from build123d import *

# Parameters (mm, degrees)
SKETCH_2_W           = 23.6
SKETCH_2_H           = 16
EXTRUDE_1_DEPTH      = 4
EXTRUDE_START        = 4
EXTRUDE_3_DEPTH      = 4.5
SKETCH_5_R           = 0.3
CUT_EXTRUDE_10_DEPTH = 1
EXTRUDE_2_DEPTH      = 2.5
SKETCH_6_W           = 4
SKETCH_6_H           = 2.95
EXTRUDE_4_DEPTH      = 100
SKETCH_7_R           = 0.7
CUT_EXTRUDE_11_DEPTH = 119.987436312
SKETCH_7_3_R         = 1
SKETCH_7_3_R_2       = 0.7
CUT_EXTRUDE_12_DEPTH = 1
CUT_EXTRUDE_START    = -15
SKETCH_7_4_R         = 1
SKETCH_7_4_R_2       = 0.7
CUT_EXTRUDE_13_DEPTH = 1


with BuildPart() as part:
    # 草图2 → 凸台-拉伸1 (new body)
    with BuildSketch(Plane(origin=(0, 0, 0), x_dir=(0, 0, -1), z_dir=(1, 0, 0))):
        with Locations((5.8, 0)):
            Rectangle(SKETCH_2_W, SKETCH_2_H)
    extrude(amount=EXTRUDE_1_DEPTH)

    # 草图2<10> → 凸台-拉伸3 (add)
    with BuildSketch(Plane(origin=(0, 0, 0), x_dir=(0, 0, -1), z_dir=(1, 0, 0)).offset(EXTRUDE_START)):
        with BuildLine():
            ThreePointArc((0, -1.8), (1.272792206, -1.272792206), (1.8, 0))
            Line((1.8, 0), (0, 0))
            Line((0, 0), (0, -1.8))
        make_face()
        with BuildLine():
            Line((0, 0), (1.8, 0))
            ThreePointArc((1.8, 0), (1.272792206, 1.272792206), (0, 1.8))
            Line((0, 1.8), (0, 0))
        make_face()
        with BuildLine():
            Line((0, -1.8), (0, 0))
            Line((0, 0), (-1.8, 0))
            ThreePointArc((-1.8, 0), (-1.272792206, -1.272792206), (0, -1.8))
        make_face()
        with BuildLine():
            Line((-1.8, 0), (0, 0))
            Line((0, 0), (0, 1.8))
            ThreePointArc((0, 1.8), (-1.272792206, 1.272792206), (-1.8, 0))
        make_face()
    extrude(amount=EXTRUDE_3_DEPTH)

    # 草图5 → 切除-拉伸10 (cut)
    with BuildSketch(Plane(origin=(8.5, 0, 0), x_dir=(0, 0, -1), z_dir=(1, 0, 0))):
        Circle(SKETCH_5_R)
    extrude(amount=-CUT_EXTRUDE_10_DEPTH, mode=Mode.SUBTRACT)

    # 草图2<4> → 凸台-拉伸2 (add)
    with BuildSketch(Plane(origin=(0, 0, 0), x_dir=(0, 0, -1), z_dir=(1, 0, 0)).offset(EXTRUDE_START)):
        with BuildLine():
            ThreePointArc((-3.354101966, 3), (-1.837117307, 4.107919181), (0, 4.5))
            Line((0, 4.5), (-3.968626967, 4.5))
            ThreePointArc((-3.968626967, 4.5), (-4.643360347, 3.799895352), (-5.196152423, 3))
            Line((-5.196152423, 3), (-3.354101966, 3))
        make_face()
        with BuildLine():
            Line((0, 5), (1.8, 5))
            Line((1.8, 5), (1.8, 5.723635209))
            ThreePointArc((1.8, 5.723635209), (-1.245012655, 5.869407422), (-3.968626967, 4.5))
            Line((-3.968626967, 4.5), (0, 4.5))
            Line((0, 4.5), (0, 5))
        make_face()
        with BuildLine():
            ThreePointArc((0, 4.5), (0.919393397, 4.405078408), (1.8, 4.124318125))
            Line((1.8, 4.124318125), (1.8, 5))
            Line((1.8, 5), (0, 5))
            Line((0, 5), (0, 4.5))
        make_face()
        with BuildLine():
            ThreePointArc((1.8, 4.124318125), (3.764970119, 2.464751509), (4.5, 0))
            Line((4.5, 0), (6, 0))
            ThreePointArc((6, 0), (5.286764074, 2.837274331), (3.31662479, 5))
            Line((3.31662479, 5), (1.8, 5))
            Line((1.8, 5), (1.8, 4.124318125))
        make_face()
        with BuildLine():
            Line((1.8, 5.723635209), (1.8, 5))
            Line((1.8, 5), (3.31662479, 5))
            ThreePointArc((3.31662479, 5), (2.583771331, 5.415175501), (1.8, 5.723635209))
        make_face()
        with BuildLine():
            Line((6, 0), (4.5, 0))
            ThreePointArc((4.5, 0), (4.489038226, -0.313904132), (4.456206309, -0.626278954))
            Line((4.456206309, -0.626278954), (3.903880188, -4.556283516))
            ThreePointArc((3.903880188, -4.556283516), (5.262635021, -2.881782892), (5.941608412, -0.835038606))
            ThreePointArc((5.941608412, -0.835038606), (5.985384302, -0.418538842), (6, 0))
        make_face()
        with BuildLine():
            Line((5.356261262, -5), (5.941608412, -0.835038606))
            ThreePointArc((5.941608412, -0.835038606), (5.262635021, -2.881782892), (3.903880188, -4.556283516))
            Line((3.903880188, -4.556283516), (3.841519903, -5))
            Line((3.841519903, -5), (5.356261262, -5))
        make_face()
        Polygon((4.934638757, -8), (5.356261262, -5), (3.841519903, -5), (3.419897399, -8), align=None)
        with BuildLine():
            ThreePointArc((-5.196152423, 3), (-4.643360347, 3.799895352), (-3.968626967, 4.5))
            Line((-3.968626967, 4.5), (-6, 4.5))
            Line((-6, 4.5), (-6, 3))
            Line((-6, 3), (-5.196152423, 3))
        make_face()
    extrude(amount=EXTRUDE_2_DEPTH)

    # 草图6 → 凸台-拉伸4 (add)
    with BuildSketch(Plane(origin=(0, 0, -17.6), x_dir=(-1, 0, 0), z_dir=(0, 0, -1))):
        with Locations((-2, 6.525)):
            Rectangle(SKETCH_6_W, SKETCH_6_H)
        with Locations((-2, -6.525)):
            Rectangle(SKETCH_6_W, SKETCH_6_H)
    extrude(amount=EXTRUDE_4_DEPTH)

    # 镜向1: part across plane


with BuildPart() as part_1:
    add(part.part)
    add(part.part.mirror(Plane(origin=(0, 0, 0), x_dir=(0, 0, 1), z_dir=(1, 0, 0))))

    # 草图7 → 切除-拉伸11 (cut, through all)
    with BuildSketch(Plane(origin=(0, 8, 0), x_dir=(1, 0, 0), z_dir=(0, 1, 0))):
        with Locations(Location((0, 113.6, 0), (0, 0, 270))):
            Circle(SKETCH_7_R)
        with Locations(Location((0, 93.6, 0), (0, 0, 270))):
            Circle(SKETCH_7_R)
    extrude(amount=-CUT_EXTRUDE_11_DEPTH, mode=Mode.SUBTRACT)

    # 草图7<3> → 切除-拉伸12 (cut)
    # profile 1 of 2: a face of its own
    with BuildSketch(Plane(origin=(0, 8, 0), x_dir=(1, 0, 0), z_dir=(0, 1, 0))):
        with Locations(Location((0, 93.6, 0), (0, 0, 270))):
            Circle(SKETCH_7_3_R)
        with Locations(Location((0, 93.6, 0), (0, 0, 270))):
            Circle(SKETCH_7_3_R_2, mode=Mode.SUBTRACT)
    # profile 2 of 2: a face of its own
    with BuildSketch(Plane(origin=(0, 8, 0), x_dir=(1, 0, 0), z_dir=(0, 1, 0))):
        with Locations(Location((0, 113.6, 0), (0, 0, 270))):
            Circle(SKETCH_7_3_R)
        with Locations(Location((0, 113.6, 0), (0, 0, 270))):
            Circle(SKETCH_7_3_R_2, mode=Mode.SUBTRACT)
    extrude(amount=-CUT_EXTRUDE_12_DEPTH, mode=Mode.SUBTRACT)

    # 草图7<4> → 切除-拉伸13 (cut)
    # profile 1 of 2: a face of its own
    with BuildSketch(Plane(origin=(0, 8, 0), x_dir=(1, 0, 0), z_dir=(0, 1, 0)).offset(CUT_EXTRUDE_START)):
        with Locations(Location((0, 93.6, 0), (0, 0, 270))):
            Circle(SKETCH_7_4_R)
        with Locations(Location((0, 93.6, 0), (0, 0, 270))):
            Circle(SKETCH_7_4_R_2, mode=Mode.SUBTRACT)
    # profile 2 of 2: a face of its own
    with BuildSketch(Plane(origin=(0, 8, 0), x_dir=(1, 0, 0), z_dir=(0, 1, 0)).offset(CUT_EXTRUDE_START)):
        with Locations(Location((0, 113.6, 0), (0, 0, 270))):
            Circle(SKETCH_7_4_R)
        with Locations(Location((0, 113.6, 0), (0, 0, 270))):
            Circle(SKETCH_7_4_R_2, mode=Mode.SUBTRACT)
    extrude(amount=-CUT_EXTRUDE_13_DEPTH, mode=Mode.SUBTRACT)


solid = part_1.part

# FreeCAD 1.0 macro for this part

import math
import FreeCAD as App
import Part
import Sketcher
Q = App.Units.Quantity


def add_polygon(sketch, points):
    """Adds a closed chain of lines whose ends are joined by coincident constraints."""
    first, n = sketch.GeometryCount, len(points)
    for a, b in zip(points, points[1:] + points[:1]):
        sketch.addGeometry(Part.LineSegment(App.Vector(*a, 0), App.Vector(*b, 0)), False)
    for i in range(n):
        sketch.addConstraint(Sketcher.Constraint("Coincident", first + i, 2, first + (i + 1) % n, 1))

doc = App.newDocument("Part")
body = doc.addObject("PartDesign::Body", "Body")

# Sketch on YZ plane
sketch1 = body.newObject("Sketcher::SketchObject", "Sketch")
sketch1.AttachmentSupport = (doc.getObject("YZ_Plane"), [""])
sketch1.MapMode = "FlatFace"
add_polygon(sketch1, [(8, 6), (-8, 6), (-8, -17.6), (8, -17.6)])  # lines 0-3
sketch1.addConstraint([
    Sketcher.Constraint("Horizontal", 0),
    Sketcher.Constraint("Vertical", 1),
    Sketcher.Constraint("Horizontal", 2),
    Sketcher.Constraint("Vertical", 3),
    Sketcher.Constraint("DistanceX", 0, 2, 0, 1, Q("16 mm")),
    Sketcher.Constraint("DistanceY", 1, 2, 1, 1, Q("23.6 mm")),
    Sketcher.Constraint("DistanceX", 0, 2, -1, 1, Q("8 mm")),
    Sketcher.Constraint("DistanceY", -1, 1, 0, 2, Q("6 mm")),
])
pad1 = body.newObject("PartDesign::Pad", "Pad")
pad1.Profile = sketch1
pad1.Length = 4

# Sketch on YZ plane
sketch2 = body.newObject("Sketcher::SketchObject", "Sketch001")
sketch2.AttachmentSupport = (doc.getObject("YZ_Plane"), [""])
sketch2.MapMode = "FlatFace"
sketch2.AttachmentOffset = App.Placement(App.Vector(0, 0, 4), App.Rotation())
sketch2.addGeometry([
    Part.ArcOfCircle(Part.Circle(App.Vector(0, 0, 0), App.Vector(0, 0, 1), 1.8), math.radians(-90), math.radians(0)),
    Part.ArcOfCircle(Part.Circle(App.Vector(0, 0, 0), App.Vector(0, 0, 1), 1.8), math.radians(0), math.radians(90)),
    Part.ArcOfCircle(Part.Circle(App.Vector(0, 0, 0), App.Vector(0, 0, 1), 1.8), math.radians(90), math.radians(180)),
    Part.ArcOfCircle(Part.Circle(App.Vector(0, 0, 0), App.Vector(0, 0, 1), 1.8), math.radians(180), math.radians(270)),
], False)
sketch2.addConstraint([
    Sketcher.Constraint("Tangent", 0, 2, 1, 1),
    Sketcher.Constraint("Tangent", 1, 2, 2, 1),
    Sketcher.Constraint("Tangent", 2, 2, 3, 1),
    Sketcher.Constraint("Tangent", 3, 2, 0, 1),
    Sketcher.Constraint("Coincident", 0, 3, -1, 1),
    Sketcher.Constraint("Equal", 0, 1),
    Sketcher.Constraint("PointOnObject", 0, 2, -1),
    Sketcher.Constraint("PointOnObject", 1, 2, -2),
    Sketcher.Constraint("PointOnObject", 2, 2, -1),
    Sketcher.Constraint("PointOnObject", 3, 2, -2),
    Sketcher.Constraint("Radius", 0, Q("1.8 mm")),
])
pad2 = body.newObject("PartDesign::Pad", "Pad001")
pad2.Profile = sketch2
pad2.Length = 4.5

# Sketch on YZ plane
sketch3 = body.newObject("Sketcher::SketchObject", "Sketch002")
sketch3.AttachmentSupport = (doc.getObject("YZ_Plane"), [""])
sketch3.MapMode = "FlatFace"
sketch3.AttachmentOffset = App.Placement(App.Vector(0, 0, 8.5), App.Rotation())
sketch3.addGeometry(Part.Circle(App.Vector(0, 0, 0), App.Vector(0, 0, 1), 0.3), False)
sketch3.addConstraint([
    Sketcher.Constraint("Coincident", 0, 3, -1, 1),
    Sketcher.Constraint("Diameter", 0, Q("0.6 mm")),
])
pocket1 = body.newObject("PartDesign::Pocket", "Pocket")
pocket1.Profile = sketch3
pocket1.Length = 1

# Sketch on YZ plane
sketch4 = body.newObject("Sketcher::SketchObject", "Sketch003")
sketch4.AttachmentSupport = (doc.getObject("YZ_Plane"), [""])
sketch4.MapMode = "FlatFace"
sketch4.AttachmentOffset = App.Placement(App.Vector(0, 0, 4), App.Rotation())
sketch4.addGeometry([
    Part.ArcOfCircle(Part.Circle(App.Vector(0, 0, 0), App.Vector(0, 0, 1), 4.5), math.radians(0), math.radians(48.189685)),  # 0
    Part.ArcOfCircle(Part.Circle(App.Vector(0, 0, 0), App.Vector(0, 0, 1), 4.5), math.radians(-23.578179), math.radians(0)),  # 1
    Part.ArcOfCircle(Part.Circle(App.Vector(0, 0, 0), App.Vector(0, 0, 1), 4.5), math.radians(-90), math.radians(-23.578178)),  # 2
    Part.ArcOfCircle(Part.Circle(App.Vector(0, 0, 0), App.Vector(0, 0, 1), 4.5), math.radians(-98), math.radians(-90)),  # 3
    Part.LineSegment(App.Vector(-0.626279, -4.456206, 0), App.Vector(-4.556284, -3.90388, 0)),  # 4
    Part.LineSegment(App.Vector(-4.556284, -3.90388, 0), App.Vector(-5, -3.84152, 0)),  # 5
    Part.LineSegment(App.Vector(-5, -3.84152, 0), App.Vector(-8, -3.419897, 0)),  # 6
    Part.LineSegment(App.Vector(-8, -3.419897, 0), App.Vector(-8, -4.934639, 0)),  # 7
    Part.LineSegment(App.Vector(-8, -4.934639, 0), App.Vector(-5, -5.356261, 0)),  # 8
    Part.LineSegment(App.Vector(-5, -5.356261, 0), App.Vector(-0.835039, -5.941608, 0)),  # 9
    Part.ArcOfCircle(Part.Circle(App.Vector(0, 0, 0), App.Vector(0, 0, 1), 6), math.radians(-98), math.radians(-90)),  # 10
    Part.ArcOfCircle(Part.Circle(App.Vector(0, 0, 0), App.Vector(0, 0, 1), 6), math.radians(-90), math.radians(-33.55731)),  # 11
    Part.ArcOfCircle(Part.Circle(App.Vector(0, 0, 0), App.Vector(0, 0, 1), 6), math.radians(-33.55731), math.radians(-17.457603)),  # 12
    Part.ArcOfCircle(Part.Circle(App.Vector(0, 0, 0), App.Vector(0, 0, 1), 6), math.radians(-17.457603), math.radians(41.409622)),  # 13
    Part.LineSegment(App.Vector(4.5, 3.968627, 0), App.Vector(4.5, 6, 0)),  # 14
    Part.LineSegment(App.Vector(4.5, 6, 0), App.Vector(3, 6, 0)),  # 15
    Part.LineSegment(App.Vector(3, 6, 0), App.Vector(3, 3.354102, 0)),  # 16
], False)
sketch4.addConstraint([
    Sketcher.Constraint("Tangent", 0, 1, 1, 2),
    Sketcher.Constraint("Tangent", 1, 1, 2, 2),
    Sketcher.Constraint("Tangent", 2, 1, 3, 2),
    Sketcher.Constraint("Tangent", 3, 1, 4, 1),
    Sketcher.Constraint("Coincident", 4, 2, 5, 1),
    Sketcher.Constraint("Coincident", 5, 2, 6, 1),
    Sketcher.Constraint("Coincident", 6, 2, 7, 1),
    Sketcher.Constraint("Coincident", 7, 2, 8, 1),
    Sketcher.Constraint("Coincident", 8, 2, 9, 1),
    Sketcher.Constraint("Tangent", 9, 2, 10, 1),
    Sketcher.Constraint("Tangent", 10, 2, 11, 1),
    Sketcher.Constraint("Tangent", 11, 2, 12, 1),
    Sketcher.Constraint("Tangent", 12, 2, 13, 1),
    Sketcher.Constraint("Coincident", 13, 2, 14, 1),
    Sketcher.Constraint("Coincident", 14, 2, 15, 1),
    Sketcher.Constraint("Coincident", 15, 2, 16, 1),
    Sketcher.Constraint("Coincident", 16, 2, 0, 2),
    Sketcher.Constraint("Vertical", 7),
    Sketcher.Constraint("Vertical", 14),
    Sketcher.Constraint("Horizontal", 15),
    Sketcher.Constraint("Vertical", 16),
    Sketcher.Constraint("Coincident", 0, 3, -1, 1),
    Sketcher.Constraint("Coincident", 2, 3, -1, 1),
    Sketcher.Constraint("Coincident", 10, 3, -1, 1),
    Sketcher.Constraint("Coincident", 12, 3, -1, 1),
    Sketcher.Constraint("Equal", 2, 3),
    Sketcher.Constraint("Equal", 12, 13),
    Sketcher.Constraint("PointOnObject", 0, 1, -1),
    Sketcher.Constraint("PointOnObject", 2, 1, -2),
    Sketcher.Constraint("PointOnObject", 10, 2, -2),
    Sketcher.Constraint("Parallel", 4, 5),
    Sketcher.Constraint("Parallel", 5, 6),
    Sketcher.Constraint("Parallel", 6, 8),
    Sketcher.Constraint("Parallel", 8, 9),
    Sketcher.Constraint("Horizontal", 1, 1, 12, 2),
    Sketcher.Constraint("Vertical", 5, 2, 8, 2),
    Sketcher.Constraint("Vertical", 0, 1, 13, 2),
    Sketcher.Constraint("Radius", 10, Q("6 mm")),
    Sketcher.Constraint("Radius", 0, Q("4.5 mm")),
    Sketcher.Constraint("Angle", 4, Q("172 deg")),
    Sketcher.Constraint("DistanceX", 15, 2, 15, 1, Q("1.5 mm")),
    Sketcher.Constraint("DistanceX", 5, 2, -1, 1, Q("5 mm")),
    Sketcher.Constraint("DistanceX", 6, 2, -1, 1, Q("8 mm")),
    Sketcher.Constraint("DistanceX", -1, 1, 11, 2, Q("5 mm")),
    Sketcher.Constraint("DistanceY", -1, 1, 14, 2, Q("6 mm")),
    Sketcher.Constraint("DistanceY", 1, 1, -1, 1, Q("1.8 mm")),
    Sketcher.Constraint("DistanceY", 4, 2, -1, 1, Q("3.90388 mm")),
])
pad3 = body.newObject("PartDesign::Pad", "Pad002")
pad3.Profile = sketch4
pad3.Length = 2.5

# Sketch on XY plane
sketch5 = body.newObject("Sketcher::SketchObject", "Sketch004")
sketch5.AttachmentSupport = (doc.getObject("XY_Plane"), [""])
sketch5.MapMode = "FlatFace"
sketch5.AttachmentOffset = App.Placement(App.Vector(0, 0, -17.6), App.Rotation())
add_polygon(sketch5, [(4, 8), (4, 5.05), (0, 5.05), (0, 8)])  # lines 0-3
add_polygon(sketch5, [(4, -5.05), (4, -8), (0, -8), (0, -5.05)])  # lines 4-7
sketch5.addConstraint([
    Sketcher.Constraint("Vertical", 0),
    Sketcher.Constraint("Horizontal", 1),
    Sketcher.Constraint("Vertical", 2),
    Sketcher.Constraint("Horizontal", 3),
    Sketcher.Constraint("Vertical", 4),
    Sketcher.Constraint("Horizontal", 5),
    Sketcher.Constraint("Vertical", 6),
    Sketcher.Constraint("Horizontal", 7),
    Sketcher.Constraint("Symmetric", 2, 2, 5, 2, -1, 1),
    Sketcher.Constraint("Symmetric", 1, 2, 6, 2, -1),
    Sketcher.Constraint("Vertical", 3, 2, 4, 2),
    Sketcher.Constraint("DistanceX", 1, 2, 1, 1, Q("4 mm")),
    Sketcher.Constraint("DistanceY", -1, 1, 2, 2, Q("8 mm")),
    Sketcher.Constraint("DistanceY", 0, 2, 0, 1, Q("2.95 mm")),
])
pad4 = body.newObject("PartDesign::Pad", "Pad003")
pad4.Profile = sketch5
pad4.Length = 100
pad4.Reversed = True
body2 = doc.addObject("PartDesign::Body", "Body001")
doc.recompute()

body2.BaseFeature = body
doc.recompute()

mirroring = doc.addObject("Part::Mirroring", "Mirroring")
mirroring.Source = body
mirroring.Base = App.Vector(0, 0, 0)
mirroring.Normal = App.Vector(1, 0, 0)
body3 = doc.addObject("PartDesign::Body", "Body002")
body3.BaseFeature = mirroring
boolean = body2.newObject("PartDesign::Boolean", "Boolean")
boolean.Type = "Fuse"
boolean.addObjects([body3])
doc.recompute()

# Sketch on XZ plane
sketch6 = body2.newObject("Sketcher::SketchObject", "Sketch005")
sketch6.AttachmentSupport = (doc.getObject("XZ_Plane001"), [""])
sketch6.MapMode = "FlatFace"
sketch6.AttachmentOffset = App.Placement(App.Vector(0, 0, -8), App.Rotation())
sketch6.addGeometry([
    Part.Circle(App.Vector(0, -113.6, 0), App.Vector(0, 0, 1), 0.7),
    Part.Circle(App.Vector(0, -93.6, 0), App.Vector(0, 0, 1), 0.7),
], False)
sketch6.addConstraint([
    Sketcher.Constraint("Equal", 0, 1),
    Sketcher.Constraint("PointOnObject", 0, 3, -2),
    Sketcher.Constraint("PointOnObject", 1, 3, -2),
    Sketcher.Constraint("Diameter", 0, Q("1.4 mm")),
    Sketcher.Constraint("DistanceY", 0, 3, 1, 3, Q("20 mm")),
    Sketcher.Constraint("DistanceY", 0, 3, -1, 1, Q("113.6 mm")),
])
pocket2 = body2.newObject("PartDesign::Pocket", "Pocket001")
pocket2.Profile = sketch6
pocket2.Type = "ThroughAll"
pocket2.Reversed = True

# Sketch on XZ plane
sketch7 = body2.newObject("Sketcher::SketchObject", "Sketch006")
sketch7.AttachmentSupport = (doc.getObject("XZ_Plane001"), [""])
sketch7.MapMode = "FlatFace"
sketch7.AttachmentOffset = App.Placement(App.Vector(0, 0, -8), App.Rotation())
sketch7.addGeometry([
    Part.Circle(App.Vector(0, -93.6, 0), App.Vector(0, 0, 1), 1),
    Part.Circle(App.Vector(0, -93.6, 0), App.Vector(0, 0, 1), 0.7),
    Part.Circle(App.Vector(0, -113.6, 0), App.Vector(0, 0, 1), 1),
    Part.Circle(App.Vector(0, -113.6, 0), App.Vector(0, 0, 1), 0.7),
], False)
sketch7.addConstraint([
    Sketcher.Constraint("Coincident", 1, 3, 0, 3),
    Sketcher.Constraint("Coincident", 3, 3, 2, 3),
    Sketcher.Constraint("Equal", 0, 2),
    Sketcher.Constraint("Equal", 1, 3),
    Sketcher.Constraint("PointOnObject", 0, 3, -2),
    Sketcher.Constraint("PointOnObject", 2, 3, -2),
    Sketcher.Constraint("Diameter", 0, Q("2 mm")),
    Sketcher.Constraint("Diameter", 1, Q("1.4 mm")),
    Sketcher.Constraint("DistanceY", 2, 3, 0, 3, Q("20 mm")),
    Sketcher.Constraint("DistanceY", 0, 3, -1, 1, Q("93.6 mm")),
])
pocket3 = body2.newObject("PartDesign::Pocket", "Pocket002")
pocket3.Profile = sketch7
pocket3.Length = 1
pocket3.Reversed = True

# Sketch on XZ plane
sketch8 = body2.newObject("Sketcher::SketchObject", "Sketch007")
sketch8.AttachmentSupport = (doc.getObject("XZ_Plane001"), [""])
sketch8.MapMode = "FlatFace"
sketch8.AttachmentOffset = App.Placement(App.Vector(0, 0, 7), App.Rotation())
sketch8.addGeometry([
    Part.Circle(App.Vector(0, -93.6, 0), App.Vector(0, 0, 1), 1),
    Part.Circle(App.Vector(0, -93.6, 0), App.Vector(0, 0, 1), 0.7),
    Part.Circle(App.Vector(0, -113.6, 0), App.Vector(0, 0, 1), 1),
    Part.Circle(App.Vector(0, -113.6, 0), App.Vector(0, 0, 1), 0.7),
], False)
sketch8.addConstraint([
    Sketcher.Constraint("Coincident", 1, 3, 0, 3),
    Sketcher.Constraint("Coincident", 3, 3, 2, 3),
    Sketcher.Constraint("Equal", 0, 2),
    Sketcher.Constraint("Equal", 1, 3),
    Sketcher.Constraint("PointOnObject", 0, 3, -2),
    Sketcher.Constraint("PointOnObject", 2, 3, -2),
    Sketcher.Constraint("Diameter", 0, Q("2 mm")),
    Sketcher.Constraint("Diameter", 1, Q("1.4 mm")),
    Sketcher.Constraint("DistanceY", 2, 3, 0, 3, Q("20 mm")),
    Sketcher.Constraint("DistanceY", 0, 3, -1, 1, Q("93.6 mm")),
])
pocket4 = body2.newObject("PartDesign::Pocket", "Pocket003")
pocket4.Profile = sketch8
pocket4.Length = 1
pocket4.Reversed = True
mirroring.Visibility = False

doc.recompute()
